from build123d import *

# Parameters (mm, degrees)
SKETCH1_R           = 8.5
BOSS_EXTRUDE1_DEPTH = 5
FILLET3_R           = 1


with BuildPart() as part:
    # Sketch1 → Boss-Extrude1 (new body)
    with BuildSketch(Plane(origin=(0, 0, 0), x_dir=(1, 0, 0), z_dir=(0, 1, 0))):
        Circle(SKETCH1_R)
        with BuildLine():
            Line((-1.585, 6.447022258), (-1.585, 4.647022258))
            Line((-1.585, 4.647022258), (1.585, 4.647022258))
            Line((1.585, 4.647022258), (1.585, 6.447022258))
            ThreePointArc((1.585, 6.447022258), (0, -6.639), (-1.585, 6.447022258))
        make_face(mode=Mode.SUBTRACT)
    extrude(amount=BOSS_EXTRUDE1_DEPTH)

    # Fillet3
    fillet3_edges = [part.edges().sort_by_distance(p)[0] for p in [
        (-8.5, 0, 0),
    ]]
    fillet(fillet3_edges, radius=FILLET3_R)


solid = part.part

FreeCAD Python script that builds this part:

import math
import FreeCAD as App
import Part
import Sketcher
from FreeCAD import Vector
Q = App.Units.Quantity


def edges_at(feature, points):
    """Names of the edges that pass closest to the given points."""
    edges = feature.Shape.Edges
    near = lambda p: min(range(len(edges)), key=lambda i: edges[i].distToShape(Part.Vertex(*p))[0])
    return sorted({f"Edge{near(p) + 1}" for p in points})

doc = App.newDocument("Part")
body = doc.addObject("PartDesign::Body", "Body")

# Sketch on XZ plane
sketch1 = body.newObject("Sketcher::SketchObject", "Sketch")
sketch1.AttachmentSupport = (doc.getObject("XZ_Plane"), [""])
sketch1.MapMode = "FlatFace"
sketch1.addGeometry([
    Part.Circle(Vector(0, 0, 0), Vector(0, 0, 1), 8.5),  # 0
    Part.ArcOfCircle(Part.Circle(Vector(0, 0, 0), Vector(0, 0, 1), 6.639), math.radians(-76.187768), math.radians(256.187768)),  # 1
    Part.LineSegment(Vector(-1.585, -6.447022, 0), Vector(-1.585, -4.647022, 0)),  # 2
    Part.LineSegment(Vector(-1.585, -4.647022, 0), Vector(1.585, -4.647022, 0)),  # 3
    Part.LineSegment(Vector(1.585, -4.647022, 0), Vector(1.585, -6.447022, 0)),  # 4
], False)
sketch1.addConstraint([
    Sketcher.Constraint("Coincident", 1, 2, 2, 1),
    Sketcher.Constraint("Coincident", 2, 2, 3, 1),
    Sketcher.Constraint("Coincident", 3, 2, 4, 1),
    Sketcher.Constraint("Coincident", 4, 2, 1, 1),
    Sketcher.Constraint("Vertical", 2),
    Sketcher.Constraint("Horizontal", 3),
    Sketcher.Constraint("Vertical", 4),
    Sketcher.Constraint("Coincident", 0, 3, -1, 1),
    Sketcher.Constraint("Coincident", 1, 3, -1, 1),
    Sketcher.Constraint("Horizontal", 1, 2, 4, 2),
    Sketcher.Constraint("Diameter", 0, Q("17 mm")),
    Sketcher.Constraint("DistanceY", 2, 1, 2, 2, Q("1.8 mm")),
    Sketcher.Constraint("Radius", 1, Q("6.639 mm")),
    Sketcher.Constraint("DistanceX", 3, 1, 3, 2, Q("3.17 mm")),
])
pad1 = body.newObject("PartDesign::Pad", "Pad")
pad1.Profile = sketch1
pad1.Length = 5
pad1.Reversed = True
doc.recompute()

fillet = body.newObject("PartDesign::Fillet", "Fillet")
fillet.Base = (pad1, edges_at(pad1, [(-8.5, 0, 0)]))
fillet.Radius = 1

doc.recompute()
